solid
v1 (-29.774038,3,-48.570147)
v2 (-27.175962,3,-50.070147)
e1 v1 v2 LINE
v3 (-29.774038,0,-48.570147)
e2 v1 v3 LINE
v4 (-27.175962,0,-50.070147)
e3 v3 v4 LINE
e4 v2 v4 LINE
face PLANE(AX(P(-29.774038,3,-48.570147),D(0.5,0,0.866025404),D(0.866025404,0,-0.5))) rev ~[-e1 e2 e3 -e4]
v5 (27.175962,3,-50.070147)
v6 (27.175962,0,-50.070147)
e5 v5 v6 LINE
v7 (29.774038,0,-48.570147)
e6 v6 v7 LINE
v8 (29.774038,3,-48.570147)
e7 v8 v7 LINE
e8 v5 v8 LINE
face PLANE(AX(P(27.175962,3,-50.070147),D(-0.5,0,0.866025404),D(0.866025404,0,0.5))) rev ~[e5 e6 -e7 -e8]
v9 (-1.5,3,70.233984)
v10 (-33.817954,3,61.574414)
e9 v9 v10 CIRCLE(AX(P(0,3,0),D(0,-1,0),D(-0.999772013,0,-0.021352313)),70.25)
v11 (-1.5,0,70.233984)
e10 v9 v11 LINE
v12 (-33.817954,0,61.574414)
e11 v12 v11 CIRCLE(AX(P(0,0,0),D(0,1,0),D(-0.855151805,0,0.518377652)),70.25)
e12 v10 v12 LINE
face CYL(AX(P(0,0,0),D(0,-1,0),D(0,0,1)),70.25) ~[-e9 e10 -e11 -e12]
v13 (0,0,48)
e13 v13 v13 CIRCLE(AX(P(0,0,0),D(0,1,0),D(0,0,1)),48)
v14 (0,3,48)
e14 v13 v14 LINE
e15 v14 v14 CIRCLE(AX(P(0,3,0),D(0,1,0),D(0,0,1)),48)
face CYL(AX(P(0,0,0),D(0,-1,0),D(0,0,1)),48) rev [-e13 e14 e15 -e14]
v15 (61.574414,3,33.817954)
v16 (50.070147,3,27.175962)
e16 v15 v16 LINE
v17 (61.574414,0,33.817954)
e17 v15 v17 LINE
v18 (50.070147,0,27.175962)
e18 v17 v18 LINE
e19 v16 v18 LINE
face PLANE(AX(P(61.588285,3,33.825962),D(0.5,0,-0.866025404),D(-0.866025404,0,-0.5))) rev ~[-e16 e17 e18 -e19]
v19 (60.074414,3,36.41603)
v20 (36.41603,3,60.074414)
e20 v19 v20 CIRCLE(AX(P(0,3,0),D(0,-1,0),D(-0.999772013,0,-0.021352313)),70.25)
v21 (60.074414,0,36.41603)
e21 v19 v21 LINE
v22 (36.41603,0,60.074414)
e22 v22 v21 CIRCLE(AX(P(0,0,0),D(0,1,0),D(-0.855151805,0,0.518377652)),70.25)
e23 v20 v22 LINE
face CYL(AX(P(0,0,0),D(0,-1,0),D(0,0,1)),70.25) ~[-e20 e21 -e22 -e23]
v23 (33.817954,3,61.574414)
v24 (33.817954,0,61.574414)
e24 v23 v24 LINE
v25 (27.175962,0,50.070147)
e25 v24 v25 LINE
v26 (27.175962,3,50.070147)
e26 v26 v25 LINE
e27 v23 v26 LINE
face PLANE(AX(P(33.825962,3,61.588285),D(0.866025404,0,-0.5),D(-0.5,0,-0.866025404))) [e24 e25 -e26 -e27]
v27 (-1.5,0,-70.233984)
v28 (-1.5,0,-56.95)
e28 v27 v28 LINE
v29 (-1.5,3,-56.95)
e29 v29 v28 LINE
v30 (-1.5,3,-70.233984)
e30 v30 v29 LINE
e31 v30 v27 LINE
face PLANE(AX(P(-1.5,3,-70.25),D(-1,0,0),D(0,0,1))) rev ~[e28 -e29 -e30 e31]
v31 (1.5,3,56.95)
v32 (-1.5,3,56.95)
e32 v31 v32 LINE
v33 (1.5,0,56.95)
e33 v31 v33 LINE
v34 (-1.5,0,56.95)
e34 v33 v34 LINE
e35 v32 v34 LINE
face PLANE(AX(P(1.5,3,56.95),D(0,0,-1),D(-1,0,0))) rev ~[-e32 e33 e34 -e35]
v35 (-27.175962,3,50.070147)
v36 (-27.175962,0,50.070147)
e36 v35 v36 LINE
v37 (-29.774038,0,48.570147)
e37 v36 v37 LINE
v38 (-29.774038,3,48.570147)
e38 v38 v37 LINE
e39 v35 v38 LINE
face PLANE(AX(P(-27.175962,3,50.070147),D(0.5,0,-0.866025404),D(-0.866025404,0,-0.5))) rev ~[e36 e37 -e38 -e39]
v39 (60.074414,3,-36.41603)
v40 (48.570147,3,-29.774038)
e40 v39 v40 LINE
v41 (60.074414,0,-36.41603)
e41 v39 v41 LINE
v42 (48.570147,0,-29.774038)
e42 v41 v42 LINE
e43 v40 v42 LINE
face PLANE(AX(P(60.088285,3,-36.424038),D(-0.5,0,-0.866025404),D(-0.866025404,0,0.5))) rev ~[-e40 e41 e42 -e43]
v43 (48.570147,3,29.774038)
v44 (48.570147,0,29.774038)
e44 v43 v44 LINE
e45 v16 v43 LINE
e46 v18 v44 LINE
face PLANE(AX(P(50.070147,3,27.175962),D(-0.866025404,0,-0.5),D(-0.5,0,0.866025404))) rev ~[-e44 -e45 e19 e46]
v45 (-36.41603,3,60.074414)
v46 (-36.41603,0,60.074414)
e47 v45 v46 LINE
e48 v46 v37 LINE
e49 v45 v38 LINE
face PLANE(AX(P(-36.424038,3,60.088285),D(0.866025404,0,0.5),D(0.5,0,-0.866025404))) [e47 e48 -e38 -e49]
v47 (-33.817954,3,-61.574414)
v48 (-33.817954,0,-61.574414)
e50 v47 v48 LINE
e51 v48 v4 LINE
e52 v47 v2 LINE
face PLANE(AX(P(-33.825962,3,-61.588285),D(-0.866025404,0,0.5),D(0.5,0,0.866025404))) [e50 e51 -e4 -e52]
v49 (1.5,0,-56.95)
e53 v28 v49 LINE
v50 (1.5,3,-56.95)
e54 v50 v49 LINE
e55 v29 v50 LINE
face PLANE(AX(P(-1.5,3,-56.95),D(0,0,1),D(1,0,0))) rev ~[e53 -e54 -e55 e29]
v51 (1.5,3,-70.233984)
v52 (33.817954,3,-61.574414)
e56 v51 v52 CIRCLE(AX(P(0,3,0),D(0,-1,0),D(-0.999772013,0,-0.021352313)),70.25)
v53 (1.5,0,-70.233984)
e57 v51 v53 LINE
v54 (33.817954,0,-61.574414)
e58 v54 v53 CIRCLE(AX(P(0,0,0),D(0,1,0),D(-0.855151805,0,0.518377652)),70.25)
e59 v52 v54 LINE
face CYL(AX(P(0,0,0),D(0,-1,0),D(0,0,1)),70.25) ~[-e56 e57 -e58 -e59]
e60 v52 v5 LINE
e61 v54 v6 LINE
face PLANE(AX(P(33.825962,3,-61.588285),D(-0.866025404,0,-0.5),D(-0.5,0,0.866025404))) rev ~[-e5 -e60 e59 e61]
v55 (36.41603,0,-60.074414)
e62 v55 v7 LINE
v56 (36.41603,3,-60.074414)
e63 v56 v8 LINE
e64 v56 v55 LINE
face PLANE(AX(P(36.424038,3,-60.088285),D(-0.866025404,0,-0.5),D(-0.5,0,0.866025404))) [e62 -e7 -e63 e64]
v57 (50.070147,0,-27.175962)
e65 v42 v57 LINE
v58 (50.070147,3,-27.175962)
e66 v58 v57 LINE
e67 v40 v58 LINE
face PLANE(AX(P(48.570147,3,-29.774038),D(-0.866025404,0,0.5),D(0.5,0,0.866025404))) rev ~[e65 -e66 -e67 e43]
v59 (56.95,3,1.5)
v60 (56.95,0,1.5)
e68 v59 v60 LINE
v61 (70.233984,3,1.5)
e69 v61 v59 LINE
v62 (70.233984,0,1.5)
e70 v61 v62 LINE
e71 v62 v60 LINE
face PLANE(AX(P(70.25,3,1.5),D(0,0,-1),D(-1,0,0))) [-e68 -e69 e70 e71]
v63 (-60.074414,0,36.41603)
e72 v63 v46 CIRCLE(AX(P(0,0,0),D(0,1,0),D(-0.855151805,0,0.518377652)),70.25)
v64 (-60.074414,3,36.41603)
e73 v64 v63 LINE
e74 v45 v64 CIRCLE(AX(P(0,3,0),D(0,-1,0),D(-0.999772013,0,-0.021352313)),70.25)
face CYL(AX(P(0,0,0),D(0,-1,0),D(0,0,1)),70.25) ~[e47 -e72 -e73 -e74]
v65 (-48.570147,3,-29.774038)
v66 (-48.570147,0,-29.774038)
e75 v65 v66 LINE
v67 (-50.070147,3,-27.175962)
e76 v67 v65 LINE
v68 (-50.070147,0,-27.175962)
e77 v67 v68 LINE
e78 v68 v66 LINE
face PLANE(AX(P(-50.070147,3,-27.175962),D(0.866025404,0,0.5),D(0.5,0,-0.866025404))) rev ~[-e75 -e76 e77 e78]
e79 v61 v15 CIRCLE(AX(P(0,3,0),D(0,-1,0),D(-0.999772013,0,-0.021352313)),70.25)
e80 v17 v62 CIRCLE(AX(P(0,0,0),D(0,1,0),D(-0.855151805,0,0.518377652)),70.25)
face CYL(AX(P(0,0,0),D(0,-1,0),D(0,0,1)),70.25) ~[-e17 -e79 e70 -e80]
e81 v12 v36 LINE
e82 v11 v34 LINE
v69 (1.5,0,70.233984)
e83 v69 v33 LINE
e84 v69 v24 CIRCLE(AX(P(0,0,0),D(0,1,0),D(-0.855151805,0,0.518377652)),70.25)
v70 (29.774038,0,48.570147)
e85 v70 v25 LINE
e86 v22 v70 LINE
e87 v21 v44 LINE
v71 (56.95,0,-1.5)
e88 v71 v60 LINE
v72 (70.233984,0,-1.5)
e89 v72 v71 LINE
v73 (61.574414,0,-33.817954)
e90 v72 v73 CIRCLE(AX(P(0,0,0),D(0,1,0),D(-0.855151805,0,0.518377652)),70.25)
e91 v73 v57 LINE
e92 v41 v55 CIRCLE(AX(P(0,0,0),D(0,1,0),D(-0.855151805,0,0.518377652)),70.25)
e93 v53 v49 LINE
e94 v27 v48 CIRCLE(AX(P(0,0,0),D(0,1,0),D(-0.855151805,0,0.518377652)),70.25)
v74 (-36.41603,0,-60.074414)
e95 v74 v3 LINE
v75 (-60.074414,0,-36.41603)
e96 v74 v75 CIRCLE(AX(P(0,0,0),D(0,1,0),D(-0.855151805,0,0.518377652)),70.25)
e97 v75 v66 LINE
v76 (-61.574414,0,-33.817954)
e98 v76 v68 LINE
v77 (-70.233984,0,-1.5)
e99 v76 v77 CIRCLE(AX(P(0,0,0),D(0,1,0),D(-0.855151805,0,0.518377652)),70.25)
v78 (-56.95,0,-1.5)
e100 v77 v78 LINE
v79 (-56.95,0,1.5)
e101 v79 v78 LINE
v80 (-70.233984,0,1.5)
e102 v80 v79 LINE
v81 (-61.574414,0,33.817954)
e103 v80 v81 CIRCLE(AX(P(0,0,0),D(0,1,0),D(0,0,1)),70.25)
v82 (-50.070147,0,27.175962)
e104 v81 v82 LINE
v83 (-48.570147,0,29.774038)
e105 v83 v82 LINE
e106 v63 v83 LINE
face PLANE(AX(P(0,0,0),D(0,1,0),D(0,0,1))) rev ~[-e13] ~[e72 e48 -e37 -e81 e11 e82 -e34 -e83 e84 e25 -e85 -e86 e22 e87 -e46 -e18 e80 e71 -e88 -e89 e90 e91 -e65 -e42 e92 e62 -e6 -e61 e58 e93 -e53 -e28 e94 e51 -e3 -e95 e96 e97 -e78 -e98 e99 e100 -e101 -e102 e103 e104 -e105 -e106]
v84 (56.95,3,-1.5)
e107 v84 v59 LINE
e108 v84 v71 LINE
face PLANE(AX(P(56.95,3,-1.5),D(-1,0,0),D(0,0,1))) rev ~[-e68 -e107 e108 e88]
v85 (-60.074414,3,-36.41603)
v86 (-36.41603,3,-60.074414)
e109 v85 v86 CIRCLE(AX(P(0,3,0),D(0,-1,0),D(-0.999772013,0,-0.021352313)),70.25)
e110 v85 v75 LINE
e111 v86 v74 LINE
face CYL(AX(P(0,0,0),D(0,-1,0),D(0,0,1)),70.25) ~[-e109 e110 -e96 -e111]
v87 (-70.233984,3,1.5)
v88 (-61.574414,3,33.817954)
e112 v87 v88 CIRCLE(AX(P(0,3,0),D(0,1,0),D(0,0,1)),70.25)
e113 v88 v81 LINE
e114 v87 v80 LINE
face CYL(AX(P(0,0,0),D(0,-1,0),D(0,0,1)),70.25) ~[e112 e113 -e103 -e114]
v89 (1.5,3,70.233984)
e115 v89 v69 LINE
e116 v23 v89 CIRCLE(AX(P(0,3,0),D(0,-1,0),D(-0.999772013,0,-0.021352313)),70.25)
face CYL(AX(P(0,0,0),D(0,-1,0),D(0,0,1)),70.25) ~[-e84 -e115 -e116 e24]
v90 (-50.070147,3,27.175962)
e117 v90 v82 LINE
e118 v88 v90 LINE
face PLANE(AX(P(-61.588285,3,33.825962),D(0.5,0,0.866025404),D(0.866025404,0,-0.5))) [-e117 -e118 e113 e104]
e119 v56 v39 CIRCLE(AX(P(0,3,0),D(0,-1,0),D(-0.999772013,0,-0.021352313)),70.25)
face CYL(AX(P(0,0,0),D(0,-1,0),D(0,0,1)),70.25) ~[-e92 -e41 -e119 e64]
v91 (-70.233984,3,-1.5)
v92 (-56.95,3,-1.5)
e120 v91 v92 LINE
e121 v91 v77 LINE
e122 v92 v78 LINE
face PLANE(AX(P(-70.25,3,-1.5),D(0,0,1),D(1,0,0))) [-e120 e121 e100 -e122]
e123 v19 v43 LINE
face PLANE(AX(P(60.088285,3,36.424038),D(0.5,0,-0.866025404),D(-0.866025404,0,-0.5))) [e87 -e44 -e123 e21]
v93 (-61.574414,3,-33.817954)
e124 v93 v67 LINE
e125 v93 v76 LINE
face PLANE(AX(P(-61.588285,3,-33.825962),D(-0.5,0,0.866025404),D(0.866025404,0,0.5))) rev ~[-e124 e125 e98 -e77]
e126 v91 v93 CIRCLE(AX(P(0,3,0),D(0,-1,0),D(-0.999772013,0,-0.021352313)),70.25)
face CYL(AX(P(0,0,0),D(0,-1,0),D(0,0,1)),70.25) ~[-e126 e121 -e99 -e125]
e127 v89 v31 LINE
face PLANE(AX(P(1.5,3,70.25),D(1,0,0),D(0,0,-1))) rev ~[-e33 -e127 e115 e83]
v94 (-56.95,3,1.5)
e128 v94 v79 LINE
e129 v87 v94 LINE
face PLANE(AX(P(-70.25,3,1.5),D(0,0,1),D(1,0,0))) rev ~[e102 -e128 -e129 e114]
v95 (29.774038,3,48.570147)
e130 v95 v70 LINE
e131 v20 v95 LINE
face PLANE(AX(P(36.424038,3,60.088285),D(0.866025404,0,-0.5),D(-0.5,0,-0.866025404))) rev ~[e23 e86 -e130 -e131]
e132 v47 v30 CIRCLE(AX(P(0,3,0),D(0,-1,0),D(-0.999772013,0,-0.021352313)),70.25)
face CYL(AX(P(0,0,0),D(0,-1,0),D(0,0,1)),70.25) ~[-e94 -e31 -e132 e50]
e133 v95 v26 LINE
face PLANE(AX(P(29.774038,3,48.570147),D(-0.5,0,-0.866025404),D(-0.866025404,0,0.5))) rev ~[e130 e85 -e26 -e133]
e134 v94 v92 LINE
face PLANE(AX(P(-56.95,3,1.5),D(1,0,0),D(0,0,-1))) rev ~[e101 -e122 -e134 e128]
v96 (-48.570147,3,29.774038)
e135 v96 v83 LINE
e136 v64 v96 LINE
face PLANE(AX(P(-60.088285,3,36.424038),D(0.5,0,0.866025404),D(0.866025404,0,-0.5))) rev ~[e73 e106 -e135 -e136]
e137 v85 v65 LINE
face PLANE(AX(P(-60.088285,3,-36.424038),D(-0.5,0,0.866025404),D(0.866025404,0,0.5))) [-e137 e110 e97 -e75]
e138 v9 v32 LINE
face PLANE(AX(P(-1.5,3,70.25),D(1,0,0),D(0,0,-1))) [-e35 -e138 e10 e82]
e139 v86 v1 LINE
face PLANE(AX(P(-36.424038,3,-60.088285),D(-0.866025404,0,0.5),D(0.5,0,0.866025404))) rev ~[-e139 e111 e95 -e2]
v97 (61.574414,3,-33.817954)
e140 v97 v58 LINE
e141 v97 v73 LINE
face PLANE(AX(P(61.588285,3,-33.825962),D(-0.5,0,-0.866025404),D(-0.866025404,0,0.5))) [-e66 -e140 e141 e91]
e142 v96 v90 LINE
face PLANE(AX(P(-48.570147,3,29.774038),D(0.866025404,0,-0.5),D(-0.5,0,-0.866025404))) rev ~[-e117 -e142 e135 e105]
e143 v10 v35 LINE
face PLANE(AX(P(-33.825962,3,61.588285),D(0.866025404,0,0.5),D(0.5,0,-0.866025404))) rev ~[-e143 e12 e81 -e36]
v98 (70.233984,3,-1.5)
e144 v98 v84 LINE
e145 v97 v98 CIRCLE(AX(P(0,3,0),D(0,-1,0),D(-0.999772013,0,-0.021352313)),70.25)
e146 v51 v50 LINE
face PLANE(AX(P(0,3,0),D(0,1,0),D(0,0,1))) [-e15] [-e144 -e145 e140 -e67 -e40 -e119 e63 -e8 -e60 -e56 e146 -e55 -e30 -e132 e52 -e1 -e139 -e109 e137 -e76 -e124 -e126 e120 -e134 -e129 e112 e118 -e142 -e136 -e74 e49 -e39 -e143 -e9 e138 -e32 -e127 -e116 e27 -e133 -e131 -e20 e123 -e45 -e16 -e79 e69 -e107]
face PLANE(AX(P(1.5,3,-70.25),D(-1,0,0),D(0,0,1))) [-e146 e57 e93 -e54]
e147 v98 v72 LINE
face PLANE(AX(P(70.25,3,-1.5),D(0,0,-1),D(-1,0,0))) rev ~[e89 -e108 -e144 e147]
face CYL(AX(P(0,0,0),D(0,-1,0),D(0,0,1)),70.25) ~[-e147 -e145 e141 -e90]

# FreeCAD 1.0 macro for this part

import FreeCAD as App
import Part
import Sketcher

V = App.Vector

doc = App.newDocument("Part")
params = doc.addObject("Spreadsheet::Sheet", "Params")
for row, (alias, value) in enumerate([
    ("sketch1_diameter", "96 mm"),
    ("sketch1_diameter2", "140.5 mm"),
    ("pad1_length", "3 mm"),
    ("sketch2_height", "3 mm"),
    ("sketch2_width", "13.3 mm"),
    ("pocket1_length", "3 mm"),
], start=1):
    params.set(f"A{row}", alias)
    params.set(f"B{row}", "=" + value)
    params.setAlias(f"B{row}", alias)

body = doc.addObject("PartDesign::Body", "Body")

# Sketch on XZ plane
sketch1 = doc.addObject("Sketcher::SketchObject", "Sketch")
body.addObject(sketch1)
sketch1.AttachmentSupport = (doc.XZ_Plane, [""])
sketch1.MapMode = "FlatFace"
sketch1.addGeometry(Part.Circle(V(0, 0, 0), V(0, 0, 1), 70), False)
sketch1.addGeometry(Part.Circle(V(0, 0, 0), V(0, 0, 1), 48), False)
sketch1.addConstraint(Sketcher.Constraint("Coincident", 0, 3, -1, 1))
sketch1.addConstraint(Sketcher.Constraint("Coincident", 1, 3, -1, 1))
sketch1.addConstraint(Sketcher.Constraint("Diameter", 1, 96.0))
sketch1.addConstraint(Sketcher.Constraint("Diameter", 0, 140.5))
sketch1.setExpression("Constraints[2]", "Params.sketch1_diameter")
sketch1.setExpression("Constraints[3]", "Params.sketch1_diameter2")
pad1 = doc.addObject("PartDesign::Pad", "Pad")
body.addObject(pad1)
pad1.Profile = sketch1
pad1.setExpression("Length", "Params.pad1_length")
pad1.Reversed = True

# Sketch on XZ plane
sketch2 = doc.addObject("Sketcher::SketchObject", "Sketch001")
body.addObject(sketch2)
sketch2.AttachmentSupport = (doc.XZ_Plane, [""])
sketch2.MapMode = "FlatFace"
sketch2.AttachmentOffset = App.Placement(V(0, 0, -3), App.Rotation())
sketch2.addGeometry(Part.LineSegment(V(-70.2, -1.5, 0), V(-70.2, 1.5, 0)), False)
sketch2.addGeometry(Part.LineSegment(V(-70.2, 1.5, 0), V(-57, 1.5, 0)), False)
sketch2.addGeometry(Part.LineSegment(V(-57, 1.5, 0), V(-57, -1.5, 0)), False)
sketch2.addGeometry(Part.LineSegment(V(-57, -1.5, 0), V(-70.2, -1.5, 0)), False)
sketch2.addConstraint(Sketcher.Constraint("Coincident", 0, 2, 1, 1))
sketch2.addConstraint(Sketcher.Constraint("Coincident", 1, 2, 2, 1))
sketch2.addConstraint(Sketcher.Constraint("Coincident", 2, 2, 3, 1))
sketch2.addConstraint(Sketcher.Constraint("Coincident", 3, 2, 0, 1))
sketch2.addConstraint(Sketcher.Constraint("Vertical", 0))
sketch2.addConstraint(Sketcher.Constraint("Horizontal", 1))
sketch2.addConstraint(Sketcher.Constraint("Vertical", 2))
sketch2.addConstraint(Sketcher.Constraint("Horizontal", 3))
sketch2.addConstraint(Sketcher.Constraint("DistanceY", 0, 1, 0, 2, 3.0))
sketch2.addConstraint(Sketcher.Constraint("DistanceX", 1, 1, 1, 2, 13.3))
sketch2.addConstraint(Sketcher.Constraint("DistanceY", -1, 1, 0, 2, 1.5))
sketch2.addConstraint(Sketcher.Constraint("DistanceX", 0, 2, -1, 1, 70.25))
sketch2.setExpression("Constraints[8]", "Params.sketch2_height")
sketch2.setExpression("Constraints[9]", "Params.sketch2_width")
pocket1 = doc.addObject("PartDesign::Pocket", "Pocket")
body.addObject(pocket1)
pocket1.Profile = sketch2
pocket1.setExpression("Length", "Params.pocket1_length")
pocket1.Reversed = True
doc.recompute()

polarpattern = doc.addObject("PartDesign::PolarPattern", "PolarPattern")
body.addObject(polarpattern)
polarpattern.Originals = [pocket1]
polarpattern.Axis = (doc.Y_Axis, [""])
polarpattern.Angle = 360
polarpattern.Occurrences = 12
body.Tip = polarpattern

doc.recompute()
